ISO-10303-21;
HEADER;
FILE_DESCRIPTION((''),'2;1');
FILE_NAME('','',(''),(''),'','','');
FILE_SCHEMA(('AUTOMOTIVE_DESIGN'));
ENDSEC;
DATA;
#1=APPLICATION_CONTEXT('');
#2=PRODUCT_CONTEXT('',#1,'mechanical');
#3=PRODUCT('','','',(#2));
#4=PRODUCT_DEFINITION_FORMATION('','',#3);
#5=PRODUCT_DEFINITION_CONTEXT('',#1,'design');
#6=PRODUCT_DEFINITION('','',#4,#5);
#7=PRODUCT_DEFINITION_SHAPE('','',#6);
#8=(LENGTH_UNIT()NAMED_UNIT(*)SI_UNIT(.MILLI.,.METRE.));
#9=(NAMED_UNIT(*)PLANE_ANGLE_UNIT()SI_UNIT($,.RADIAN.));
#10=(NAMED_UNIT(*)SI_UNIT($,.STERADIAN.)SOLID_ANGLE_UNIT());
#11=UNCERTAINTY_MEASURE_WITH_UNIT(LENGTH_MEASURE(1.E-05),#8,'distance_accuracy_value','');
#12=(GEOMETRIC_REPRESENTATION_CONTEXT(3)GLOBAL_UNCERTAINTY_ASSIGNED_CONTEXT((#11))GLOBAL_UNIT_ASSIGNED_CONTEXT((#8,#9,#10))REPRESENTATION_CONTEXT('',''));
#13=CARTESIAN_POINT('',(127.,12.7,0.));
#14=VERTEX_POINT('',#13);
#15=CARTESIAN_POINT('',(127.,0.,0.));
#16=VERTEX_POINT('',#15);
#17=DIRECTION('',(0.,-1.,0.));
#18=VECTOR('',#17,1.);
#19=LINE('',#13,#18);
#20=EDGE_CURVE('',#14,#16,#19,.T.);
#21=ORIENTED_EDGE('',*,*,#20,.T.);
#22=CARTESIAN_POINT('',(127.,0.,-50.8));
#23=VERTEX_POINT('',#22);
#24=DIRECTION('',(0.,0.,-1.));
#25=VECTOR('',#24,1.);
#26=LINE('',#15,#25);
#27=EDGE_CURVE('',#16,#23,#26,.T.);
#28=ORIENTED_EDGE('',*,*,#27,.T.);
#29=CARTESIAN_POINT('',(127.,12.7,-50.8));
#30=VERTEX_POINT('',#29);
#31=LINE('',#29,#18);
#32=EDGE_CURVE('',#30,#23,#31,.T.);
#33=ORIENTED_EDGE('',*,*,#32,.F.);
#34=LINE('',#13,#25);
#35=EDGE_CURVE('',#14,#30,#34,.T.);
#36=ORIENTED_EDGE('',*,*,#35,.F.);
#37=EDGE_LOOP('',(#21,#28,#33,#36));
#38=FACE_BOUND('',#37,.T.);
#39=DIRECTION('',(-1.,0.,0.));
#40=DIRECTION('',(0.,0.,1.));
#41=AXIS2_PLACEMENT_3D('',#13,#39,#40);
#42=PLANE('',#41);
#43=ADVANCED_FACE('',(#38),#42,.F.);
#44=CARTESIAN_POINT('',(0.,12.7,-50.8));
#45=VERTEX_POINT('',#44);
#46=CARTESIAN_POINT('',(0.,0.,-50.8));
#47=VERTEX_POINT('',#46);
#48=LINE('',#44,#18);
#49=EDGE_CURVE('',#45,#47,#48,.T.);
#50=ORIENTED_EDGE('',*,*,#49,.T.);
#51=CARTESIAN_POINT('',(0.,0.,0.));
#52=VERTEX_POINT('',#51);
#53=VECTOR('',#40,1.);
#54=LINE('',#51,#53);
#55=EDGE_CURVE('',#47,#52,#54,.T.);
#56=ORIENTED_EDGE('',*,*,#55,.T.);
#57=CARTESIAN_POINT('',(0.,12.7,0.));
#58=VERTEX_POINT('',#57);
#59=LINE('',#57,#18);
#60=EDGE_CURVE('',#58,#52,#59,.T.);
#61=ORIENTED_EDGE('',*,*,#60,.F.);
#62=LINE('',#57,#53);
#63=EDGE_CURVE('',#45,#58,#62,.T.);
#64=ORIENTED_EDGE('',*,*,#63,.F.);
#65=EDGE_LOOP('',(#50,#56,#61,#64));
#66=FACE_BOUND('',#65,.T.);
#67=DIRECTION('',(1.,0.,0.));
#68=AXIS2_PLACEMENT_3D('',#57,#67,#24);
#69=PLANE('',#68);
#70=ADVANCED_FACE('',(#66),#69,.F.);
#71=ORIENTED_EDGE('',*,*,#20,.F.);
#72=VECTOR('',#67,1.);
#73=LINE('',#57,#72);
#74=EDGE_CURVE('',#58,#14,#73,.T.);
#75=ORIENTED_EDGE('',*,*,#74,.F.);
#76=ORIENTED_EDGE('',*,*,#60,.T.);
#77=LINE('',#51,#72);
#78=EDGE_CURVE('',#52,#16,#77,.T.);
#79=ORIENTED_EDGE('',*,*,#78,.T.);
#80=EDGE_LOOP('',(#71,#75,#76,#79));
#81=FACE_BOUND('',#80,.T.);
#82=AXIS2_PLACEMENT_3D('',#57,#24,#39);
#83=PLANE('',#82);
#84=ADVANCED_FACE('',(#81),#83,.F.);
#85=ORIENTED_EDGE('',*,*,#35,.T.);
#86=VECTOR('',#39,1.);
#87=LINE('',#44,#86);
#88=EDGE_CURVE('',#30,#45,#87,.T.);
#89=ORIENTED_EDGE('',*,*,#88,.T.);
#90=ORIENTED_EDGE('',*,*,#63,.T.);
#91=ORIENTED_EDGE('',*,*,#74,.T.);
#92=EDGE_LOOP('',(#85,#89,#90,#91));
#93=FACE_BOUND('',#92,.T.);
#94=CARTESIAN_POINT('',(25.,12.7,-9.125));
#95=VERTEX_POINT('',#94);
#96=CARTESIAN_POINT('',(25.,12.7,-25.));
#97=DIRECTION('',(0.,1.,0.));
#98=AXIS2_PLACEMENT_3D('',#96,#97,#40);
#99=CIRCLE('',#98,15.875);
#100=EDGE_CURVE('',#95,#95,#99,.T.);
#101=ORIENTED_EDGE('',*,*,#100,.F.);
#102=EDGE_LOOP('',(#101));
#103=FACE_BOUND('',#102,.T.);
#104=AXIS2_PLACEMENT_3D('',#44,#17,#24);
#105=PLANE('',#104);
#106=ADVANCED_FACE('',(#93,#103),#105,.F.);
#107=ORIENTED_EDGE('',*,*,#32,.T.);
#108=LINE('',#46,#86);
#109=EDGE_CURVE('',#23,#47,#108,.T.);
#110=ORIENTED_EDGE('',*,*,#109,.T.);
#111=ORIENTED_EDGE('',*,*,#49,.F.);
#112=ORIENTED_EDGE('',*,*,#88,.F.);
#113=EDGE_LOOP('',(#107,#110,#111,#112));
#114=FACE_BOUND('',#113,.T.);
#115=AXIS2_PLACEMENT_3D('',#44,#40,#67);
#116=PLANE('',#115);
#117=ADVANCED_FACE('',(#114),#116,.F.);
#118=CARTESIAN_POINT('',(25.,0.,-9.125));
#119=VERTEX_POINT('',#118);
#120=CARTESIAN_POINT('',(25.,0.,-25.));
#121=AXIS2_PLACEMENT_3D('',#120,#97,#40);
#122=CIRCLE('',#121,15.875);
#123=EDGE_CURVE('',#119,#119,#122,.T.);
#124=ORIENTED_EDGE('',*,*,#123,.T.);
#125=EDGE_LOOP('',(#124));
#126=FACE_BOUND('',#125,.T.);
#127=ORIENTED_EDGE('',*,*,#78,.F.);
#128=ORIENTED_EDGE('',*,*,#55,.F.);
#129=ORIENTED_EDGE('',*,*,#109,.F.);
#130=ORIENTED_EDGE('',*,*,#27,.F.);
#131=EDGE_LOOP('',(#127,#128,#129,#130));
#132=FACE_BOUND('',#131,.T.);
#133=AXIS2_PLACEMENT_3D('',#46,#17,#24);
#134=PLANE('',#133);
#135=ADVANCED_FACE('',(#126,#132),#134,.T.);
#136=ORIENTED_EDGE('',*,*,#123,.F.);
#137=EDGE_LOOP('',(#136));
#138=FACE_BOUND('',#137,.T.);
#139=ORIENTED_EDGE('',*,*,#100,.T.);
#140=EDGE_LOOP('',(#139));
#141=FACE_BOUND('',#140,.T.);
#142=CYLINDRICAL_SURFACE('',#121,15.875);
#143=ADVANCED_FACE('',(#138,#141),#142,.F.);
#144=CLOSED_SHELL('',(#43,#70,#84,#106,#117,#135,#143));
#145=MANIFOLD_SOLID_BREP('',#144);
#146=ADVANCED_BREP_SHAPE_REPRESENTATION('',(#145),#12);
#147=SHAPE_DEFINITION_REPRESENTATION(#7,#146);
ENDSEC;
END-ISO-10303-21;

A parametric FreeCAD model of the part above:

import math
import FreeCAD as App
import Part
import Sketcher
from FreeCAD import Vector
Q = App.Units.Quantity


def add_polygon(sketch, points):
    """Adds a closed chain of lines whose ends are joined by coincident constraints."""
    first, n = sketch.GeometryCount, len(points)
    for a, b in zip(points, points[1:] + points[:1]):
        sketch.addGeometry(Part.LineSegment(App.Vector(*a, 0), App.Vector(*b, 0)), False)
    for i in range(n):
        sketch.addConstraint(Sketcher.Constraint("Coincident", first + i, 2, first + (i + 1) % n, 1))

doc = App.newDocument("Part")
body = doc.addObject("PartDesign::Body", "Body")

sketch1 = body.newObject("Sketcher::SketchObject", "Sketch")
sketch1.AttachmentSupport = (doc.getObject("XZ_Plane"), [""])
sketch1.MapMode = "FlatFace"
add_polygon(sketch1, [(0, -51), (0, 0), (127, 0), (127, -51)])
sketch1.addConstraint([
    Sketcher.Constraint("Vertical", 0),
    Sketcher.Constraint("Horizontal", 1),
    Sketcher.Constraint("Vertical", 2),
    Sketcher.Constraint("Horizontal", 3),
    Sketcher.Constraint("Coincident", 0, 2, -1, 1),
    Sketcher.Constraint("DistanceX", 1, 1, 1, 2, Q("5 in")),
    Sketcher.Constraint("DistanceY", 0, 1, 0, 2, Q("2 in")),
])
pad1 = body.newObject("PartDesign::Pad", "Pad")
pad1.Profile = sketch1
pad1.Length = Q("0.5 in")
pad1.Reversed = True

sketch2 = body.newObject("Sketcher::SketchObject", "Sketch001")
sketch2.AttachmentSupport = (doc.getObject("XZ_Plane"), [""])
sketch2.MapMode = "FlatFace"
sketch2.AttachmentOffset = App.Placement(Vector(0, 0, -0.5 * 25.4), App.Rotation())
sketch2.addGeometry([
    Part.ArcOfCircle(Part.Circle(Vector(25, -25, 0), Vector(0, 0, 1), 16), math.radians(90), math.radians(180)),
    Part.ArcOfCircle(Part.Circle(Vector(25, -25, 0), Vector(0, 0, 1), 16), math.radians(0), math.radians(90)),
    Part.ArcOfCircle(Part.Circle(Vector(25, -25, 0), Vector(0, 0, 1), 16), math.radians(180), math.radians(360)),
], False)
sketch2.addConstraint([
    Sketcher.Constraint("Tangent", 0, 1, 1, 2),
    Sketcher.Constraint("Tangent", 1, 1, 2, 2),
    Sketcher.Constraint("Tangent", 2, 1, 0, 2),
    Sketcher.Constraint("Horizontal", 2, 3, 1, 1),
    Sketcher.Constraint("Horizontal", 1, 1, 2, 1),
    Sketcher.Constraint("Vertical", 2, 3, 0, 1),
    Sketcher.Constraint("Radius", 0, Q("0.625 in")),
    Sketcher.Constraint("DistanceX", -1, 1, 0, 3, 25.0),
    Sketcher.Constraint("DistanceY", 0, 3, -1, 1, 25.0),
])
pocket1 = body.newObject("PartDesign::Pocket", "Pocket")
pocket1.Profile = sketch2
pocket1.Length = Q("0.5 in")
pocket1.Reversed = True

doc.recompute()
